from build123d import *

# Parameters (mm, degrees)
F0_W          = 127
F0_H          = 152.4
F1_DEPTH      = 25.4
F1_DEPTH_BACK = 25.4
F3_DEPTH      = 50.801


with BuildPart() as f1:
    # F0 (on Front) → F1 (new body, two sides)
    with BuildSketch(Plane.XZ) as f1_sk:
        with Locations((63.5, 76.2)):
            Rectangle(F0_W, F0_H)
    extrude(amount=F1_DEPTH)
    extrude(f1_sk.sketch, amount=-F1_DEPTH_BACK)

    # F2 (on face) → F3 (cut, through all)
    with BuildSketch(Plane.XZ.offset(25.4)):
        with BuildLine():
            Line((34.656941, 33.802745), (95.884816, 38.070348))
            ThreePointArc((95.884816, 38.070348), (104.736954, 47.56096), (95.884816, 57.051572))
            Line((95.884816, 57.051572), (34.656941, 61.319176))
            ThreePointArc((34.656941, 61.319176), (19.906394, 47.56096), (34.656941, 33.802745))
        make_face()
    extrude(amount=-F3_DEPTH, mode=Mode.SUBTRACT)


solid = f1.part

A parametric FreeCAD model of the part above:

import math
import FreeCAD as App
import Part
import Sketcher

V = App.Vector
Q = App.Units.Quantity


def add_polygon(sketch, points):
    """Adds a closed chain of lines whose ends are joined by coincident constraints."""
    first, n = sketch.GeometryCount, len(points)
    for a, b in zip(points, points[1:] + points[:1]):
        sketch.addGeometry(Part.LineSegment(App.Vector(*a, 0), App.Vector(*b, 0)), False)
    for i in range(n):
        sketch.addConstraint(Sketcher.Constraint("Coincident", first + i, 2, first + (i + 1) % n, 1))

doc = App.newDocument("Part")
body = doc.addObject("PartDesign::Body", "Body")

# Sketch on XZ plane
sketch1 = doc.addObject("Sketcher::SketchObject", "Sketch")
body.addObject(sketch1)
sketch1.AttachmentSupport = (doc.XZ_Plane, [""])
sketch1.MapMode = "FlatFace"
add_polygon(sketch1, [(0, 152.4), (0, 0), (127, 0), (127, 152.4)])  # lines 0-3
sketch1.addConstraint([
    Sketcher.Constraint("Vertical", 0),
    Sketcher.Constraint("Horizontal", 1),
    Sketcher.Constraint("Vertical", 2),
    Sketcher.Constraint("Horizontal", 3),
    Sketcher.Constraint("Coincident", 0, 2, -1, 1),
    Sketcher.Constraint("DistanceX", 1, 1, 1, 2, Q("5 in")),
    Sketcher.Constraint("DistanceY", 0, 2, 0, 1, Q("6 in")),
])
pad1 = doc.addObject("PartDesign::Pad", "Pad")
body.addObject(pad1)
pad1.Profile = sketch1
pad1.Type = "TwoLengths"
pad1.Length = Q("1 in")
pad1.Length2 = Q("1 in")

# Sketch on XZ plane
sketch2 = doc.addObject("Sketcher::SketchObject", "Sketch001")
body.addObject(sketch2)
sketch2.AttachmentSupport = (doc.XZ_Plane, [""])
sketch2.MapMode = "FlatFace"
sketch2.AttachmentOffset = App.Placement(V(0, 0, 1 * 25.4), App.Rotation())
sketch2.addGeometry([
    Part.LineSegment(V(34.656941, 33.802745, 0), V(95.884816, 38.070348, 0)),
    Part.ArcOfCircle(Part.Circle(V(95.223317, 47.56096, 0), V(0, 0, 1), 9.513637), math.radians(-86.01291), math.radians(86.01291)),
    Part.LineSegment(V(95.884816, 57.051572, 0), V(34.656941, 61.319176, 0)),
    Part.ArcOfCircle(Part.Circle(V(33.697989, 47.560961, 0), V(0, 0, 1), 13.791595), math.radians(86.012913), math.radians(273.987087)),
], False)
sketch2.addConstraint([
    Sketcher.Constraint("Tangent", 0, 2, 1, 1),
    Sketcher.Constraint("Tangent", 1, 2, 2, 1),
    Sketcher.Constraint("Tangent", 2, 2, 3, 1),
    Sketcher.Constraint("Tangent", 3, 2, 0, 1),
    Sketcher.Constraint("Horizontal", 1, 3, 3, 3),
    Sketcher.Constraint("Radius", 1, 9.513637),
    Sketcher.Constraint("Radius", 3, 13.791595),
    Sketcher.Constraint("DistanceX", 1, 3, 0, 2, 0.661499),
    Sketcher.Constraint("DistanceY", -1, 1, 1, 3, 47.56096),
    Sketcher.Constraint("DistanceX", -1, 1, 3, 3, 33.697989),
])
pocket1 = doc.addObject("PartDesign::Pocket", "Pocket")
body.addObject(pocket1)
pocket1.Profile = sketch2
pocket1.Type = "ThroughAll"

doc.recompute()
